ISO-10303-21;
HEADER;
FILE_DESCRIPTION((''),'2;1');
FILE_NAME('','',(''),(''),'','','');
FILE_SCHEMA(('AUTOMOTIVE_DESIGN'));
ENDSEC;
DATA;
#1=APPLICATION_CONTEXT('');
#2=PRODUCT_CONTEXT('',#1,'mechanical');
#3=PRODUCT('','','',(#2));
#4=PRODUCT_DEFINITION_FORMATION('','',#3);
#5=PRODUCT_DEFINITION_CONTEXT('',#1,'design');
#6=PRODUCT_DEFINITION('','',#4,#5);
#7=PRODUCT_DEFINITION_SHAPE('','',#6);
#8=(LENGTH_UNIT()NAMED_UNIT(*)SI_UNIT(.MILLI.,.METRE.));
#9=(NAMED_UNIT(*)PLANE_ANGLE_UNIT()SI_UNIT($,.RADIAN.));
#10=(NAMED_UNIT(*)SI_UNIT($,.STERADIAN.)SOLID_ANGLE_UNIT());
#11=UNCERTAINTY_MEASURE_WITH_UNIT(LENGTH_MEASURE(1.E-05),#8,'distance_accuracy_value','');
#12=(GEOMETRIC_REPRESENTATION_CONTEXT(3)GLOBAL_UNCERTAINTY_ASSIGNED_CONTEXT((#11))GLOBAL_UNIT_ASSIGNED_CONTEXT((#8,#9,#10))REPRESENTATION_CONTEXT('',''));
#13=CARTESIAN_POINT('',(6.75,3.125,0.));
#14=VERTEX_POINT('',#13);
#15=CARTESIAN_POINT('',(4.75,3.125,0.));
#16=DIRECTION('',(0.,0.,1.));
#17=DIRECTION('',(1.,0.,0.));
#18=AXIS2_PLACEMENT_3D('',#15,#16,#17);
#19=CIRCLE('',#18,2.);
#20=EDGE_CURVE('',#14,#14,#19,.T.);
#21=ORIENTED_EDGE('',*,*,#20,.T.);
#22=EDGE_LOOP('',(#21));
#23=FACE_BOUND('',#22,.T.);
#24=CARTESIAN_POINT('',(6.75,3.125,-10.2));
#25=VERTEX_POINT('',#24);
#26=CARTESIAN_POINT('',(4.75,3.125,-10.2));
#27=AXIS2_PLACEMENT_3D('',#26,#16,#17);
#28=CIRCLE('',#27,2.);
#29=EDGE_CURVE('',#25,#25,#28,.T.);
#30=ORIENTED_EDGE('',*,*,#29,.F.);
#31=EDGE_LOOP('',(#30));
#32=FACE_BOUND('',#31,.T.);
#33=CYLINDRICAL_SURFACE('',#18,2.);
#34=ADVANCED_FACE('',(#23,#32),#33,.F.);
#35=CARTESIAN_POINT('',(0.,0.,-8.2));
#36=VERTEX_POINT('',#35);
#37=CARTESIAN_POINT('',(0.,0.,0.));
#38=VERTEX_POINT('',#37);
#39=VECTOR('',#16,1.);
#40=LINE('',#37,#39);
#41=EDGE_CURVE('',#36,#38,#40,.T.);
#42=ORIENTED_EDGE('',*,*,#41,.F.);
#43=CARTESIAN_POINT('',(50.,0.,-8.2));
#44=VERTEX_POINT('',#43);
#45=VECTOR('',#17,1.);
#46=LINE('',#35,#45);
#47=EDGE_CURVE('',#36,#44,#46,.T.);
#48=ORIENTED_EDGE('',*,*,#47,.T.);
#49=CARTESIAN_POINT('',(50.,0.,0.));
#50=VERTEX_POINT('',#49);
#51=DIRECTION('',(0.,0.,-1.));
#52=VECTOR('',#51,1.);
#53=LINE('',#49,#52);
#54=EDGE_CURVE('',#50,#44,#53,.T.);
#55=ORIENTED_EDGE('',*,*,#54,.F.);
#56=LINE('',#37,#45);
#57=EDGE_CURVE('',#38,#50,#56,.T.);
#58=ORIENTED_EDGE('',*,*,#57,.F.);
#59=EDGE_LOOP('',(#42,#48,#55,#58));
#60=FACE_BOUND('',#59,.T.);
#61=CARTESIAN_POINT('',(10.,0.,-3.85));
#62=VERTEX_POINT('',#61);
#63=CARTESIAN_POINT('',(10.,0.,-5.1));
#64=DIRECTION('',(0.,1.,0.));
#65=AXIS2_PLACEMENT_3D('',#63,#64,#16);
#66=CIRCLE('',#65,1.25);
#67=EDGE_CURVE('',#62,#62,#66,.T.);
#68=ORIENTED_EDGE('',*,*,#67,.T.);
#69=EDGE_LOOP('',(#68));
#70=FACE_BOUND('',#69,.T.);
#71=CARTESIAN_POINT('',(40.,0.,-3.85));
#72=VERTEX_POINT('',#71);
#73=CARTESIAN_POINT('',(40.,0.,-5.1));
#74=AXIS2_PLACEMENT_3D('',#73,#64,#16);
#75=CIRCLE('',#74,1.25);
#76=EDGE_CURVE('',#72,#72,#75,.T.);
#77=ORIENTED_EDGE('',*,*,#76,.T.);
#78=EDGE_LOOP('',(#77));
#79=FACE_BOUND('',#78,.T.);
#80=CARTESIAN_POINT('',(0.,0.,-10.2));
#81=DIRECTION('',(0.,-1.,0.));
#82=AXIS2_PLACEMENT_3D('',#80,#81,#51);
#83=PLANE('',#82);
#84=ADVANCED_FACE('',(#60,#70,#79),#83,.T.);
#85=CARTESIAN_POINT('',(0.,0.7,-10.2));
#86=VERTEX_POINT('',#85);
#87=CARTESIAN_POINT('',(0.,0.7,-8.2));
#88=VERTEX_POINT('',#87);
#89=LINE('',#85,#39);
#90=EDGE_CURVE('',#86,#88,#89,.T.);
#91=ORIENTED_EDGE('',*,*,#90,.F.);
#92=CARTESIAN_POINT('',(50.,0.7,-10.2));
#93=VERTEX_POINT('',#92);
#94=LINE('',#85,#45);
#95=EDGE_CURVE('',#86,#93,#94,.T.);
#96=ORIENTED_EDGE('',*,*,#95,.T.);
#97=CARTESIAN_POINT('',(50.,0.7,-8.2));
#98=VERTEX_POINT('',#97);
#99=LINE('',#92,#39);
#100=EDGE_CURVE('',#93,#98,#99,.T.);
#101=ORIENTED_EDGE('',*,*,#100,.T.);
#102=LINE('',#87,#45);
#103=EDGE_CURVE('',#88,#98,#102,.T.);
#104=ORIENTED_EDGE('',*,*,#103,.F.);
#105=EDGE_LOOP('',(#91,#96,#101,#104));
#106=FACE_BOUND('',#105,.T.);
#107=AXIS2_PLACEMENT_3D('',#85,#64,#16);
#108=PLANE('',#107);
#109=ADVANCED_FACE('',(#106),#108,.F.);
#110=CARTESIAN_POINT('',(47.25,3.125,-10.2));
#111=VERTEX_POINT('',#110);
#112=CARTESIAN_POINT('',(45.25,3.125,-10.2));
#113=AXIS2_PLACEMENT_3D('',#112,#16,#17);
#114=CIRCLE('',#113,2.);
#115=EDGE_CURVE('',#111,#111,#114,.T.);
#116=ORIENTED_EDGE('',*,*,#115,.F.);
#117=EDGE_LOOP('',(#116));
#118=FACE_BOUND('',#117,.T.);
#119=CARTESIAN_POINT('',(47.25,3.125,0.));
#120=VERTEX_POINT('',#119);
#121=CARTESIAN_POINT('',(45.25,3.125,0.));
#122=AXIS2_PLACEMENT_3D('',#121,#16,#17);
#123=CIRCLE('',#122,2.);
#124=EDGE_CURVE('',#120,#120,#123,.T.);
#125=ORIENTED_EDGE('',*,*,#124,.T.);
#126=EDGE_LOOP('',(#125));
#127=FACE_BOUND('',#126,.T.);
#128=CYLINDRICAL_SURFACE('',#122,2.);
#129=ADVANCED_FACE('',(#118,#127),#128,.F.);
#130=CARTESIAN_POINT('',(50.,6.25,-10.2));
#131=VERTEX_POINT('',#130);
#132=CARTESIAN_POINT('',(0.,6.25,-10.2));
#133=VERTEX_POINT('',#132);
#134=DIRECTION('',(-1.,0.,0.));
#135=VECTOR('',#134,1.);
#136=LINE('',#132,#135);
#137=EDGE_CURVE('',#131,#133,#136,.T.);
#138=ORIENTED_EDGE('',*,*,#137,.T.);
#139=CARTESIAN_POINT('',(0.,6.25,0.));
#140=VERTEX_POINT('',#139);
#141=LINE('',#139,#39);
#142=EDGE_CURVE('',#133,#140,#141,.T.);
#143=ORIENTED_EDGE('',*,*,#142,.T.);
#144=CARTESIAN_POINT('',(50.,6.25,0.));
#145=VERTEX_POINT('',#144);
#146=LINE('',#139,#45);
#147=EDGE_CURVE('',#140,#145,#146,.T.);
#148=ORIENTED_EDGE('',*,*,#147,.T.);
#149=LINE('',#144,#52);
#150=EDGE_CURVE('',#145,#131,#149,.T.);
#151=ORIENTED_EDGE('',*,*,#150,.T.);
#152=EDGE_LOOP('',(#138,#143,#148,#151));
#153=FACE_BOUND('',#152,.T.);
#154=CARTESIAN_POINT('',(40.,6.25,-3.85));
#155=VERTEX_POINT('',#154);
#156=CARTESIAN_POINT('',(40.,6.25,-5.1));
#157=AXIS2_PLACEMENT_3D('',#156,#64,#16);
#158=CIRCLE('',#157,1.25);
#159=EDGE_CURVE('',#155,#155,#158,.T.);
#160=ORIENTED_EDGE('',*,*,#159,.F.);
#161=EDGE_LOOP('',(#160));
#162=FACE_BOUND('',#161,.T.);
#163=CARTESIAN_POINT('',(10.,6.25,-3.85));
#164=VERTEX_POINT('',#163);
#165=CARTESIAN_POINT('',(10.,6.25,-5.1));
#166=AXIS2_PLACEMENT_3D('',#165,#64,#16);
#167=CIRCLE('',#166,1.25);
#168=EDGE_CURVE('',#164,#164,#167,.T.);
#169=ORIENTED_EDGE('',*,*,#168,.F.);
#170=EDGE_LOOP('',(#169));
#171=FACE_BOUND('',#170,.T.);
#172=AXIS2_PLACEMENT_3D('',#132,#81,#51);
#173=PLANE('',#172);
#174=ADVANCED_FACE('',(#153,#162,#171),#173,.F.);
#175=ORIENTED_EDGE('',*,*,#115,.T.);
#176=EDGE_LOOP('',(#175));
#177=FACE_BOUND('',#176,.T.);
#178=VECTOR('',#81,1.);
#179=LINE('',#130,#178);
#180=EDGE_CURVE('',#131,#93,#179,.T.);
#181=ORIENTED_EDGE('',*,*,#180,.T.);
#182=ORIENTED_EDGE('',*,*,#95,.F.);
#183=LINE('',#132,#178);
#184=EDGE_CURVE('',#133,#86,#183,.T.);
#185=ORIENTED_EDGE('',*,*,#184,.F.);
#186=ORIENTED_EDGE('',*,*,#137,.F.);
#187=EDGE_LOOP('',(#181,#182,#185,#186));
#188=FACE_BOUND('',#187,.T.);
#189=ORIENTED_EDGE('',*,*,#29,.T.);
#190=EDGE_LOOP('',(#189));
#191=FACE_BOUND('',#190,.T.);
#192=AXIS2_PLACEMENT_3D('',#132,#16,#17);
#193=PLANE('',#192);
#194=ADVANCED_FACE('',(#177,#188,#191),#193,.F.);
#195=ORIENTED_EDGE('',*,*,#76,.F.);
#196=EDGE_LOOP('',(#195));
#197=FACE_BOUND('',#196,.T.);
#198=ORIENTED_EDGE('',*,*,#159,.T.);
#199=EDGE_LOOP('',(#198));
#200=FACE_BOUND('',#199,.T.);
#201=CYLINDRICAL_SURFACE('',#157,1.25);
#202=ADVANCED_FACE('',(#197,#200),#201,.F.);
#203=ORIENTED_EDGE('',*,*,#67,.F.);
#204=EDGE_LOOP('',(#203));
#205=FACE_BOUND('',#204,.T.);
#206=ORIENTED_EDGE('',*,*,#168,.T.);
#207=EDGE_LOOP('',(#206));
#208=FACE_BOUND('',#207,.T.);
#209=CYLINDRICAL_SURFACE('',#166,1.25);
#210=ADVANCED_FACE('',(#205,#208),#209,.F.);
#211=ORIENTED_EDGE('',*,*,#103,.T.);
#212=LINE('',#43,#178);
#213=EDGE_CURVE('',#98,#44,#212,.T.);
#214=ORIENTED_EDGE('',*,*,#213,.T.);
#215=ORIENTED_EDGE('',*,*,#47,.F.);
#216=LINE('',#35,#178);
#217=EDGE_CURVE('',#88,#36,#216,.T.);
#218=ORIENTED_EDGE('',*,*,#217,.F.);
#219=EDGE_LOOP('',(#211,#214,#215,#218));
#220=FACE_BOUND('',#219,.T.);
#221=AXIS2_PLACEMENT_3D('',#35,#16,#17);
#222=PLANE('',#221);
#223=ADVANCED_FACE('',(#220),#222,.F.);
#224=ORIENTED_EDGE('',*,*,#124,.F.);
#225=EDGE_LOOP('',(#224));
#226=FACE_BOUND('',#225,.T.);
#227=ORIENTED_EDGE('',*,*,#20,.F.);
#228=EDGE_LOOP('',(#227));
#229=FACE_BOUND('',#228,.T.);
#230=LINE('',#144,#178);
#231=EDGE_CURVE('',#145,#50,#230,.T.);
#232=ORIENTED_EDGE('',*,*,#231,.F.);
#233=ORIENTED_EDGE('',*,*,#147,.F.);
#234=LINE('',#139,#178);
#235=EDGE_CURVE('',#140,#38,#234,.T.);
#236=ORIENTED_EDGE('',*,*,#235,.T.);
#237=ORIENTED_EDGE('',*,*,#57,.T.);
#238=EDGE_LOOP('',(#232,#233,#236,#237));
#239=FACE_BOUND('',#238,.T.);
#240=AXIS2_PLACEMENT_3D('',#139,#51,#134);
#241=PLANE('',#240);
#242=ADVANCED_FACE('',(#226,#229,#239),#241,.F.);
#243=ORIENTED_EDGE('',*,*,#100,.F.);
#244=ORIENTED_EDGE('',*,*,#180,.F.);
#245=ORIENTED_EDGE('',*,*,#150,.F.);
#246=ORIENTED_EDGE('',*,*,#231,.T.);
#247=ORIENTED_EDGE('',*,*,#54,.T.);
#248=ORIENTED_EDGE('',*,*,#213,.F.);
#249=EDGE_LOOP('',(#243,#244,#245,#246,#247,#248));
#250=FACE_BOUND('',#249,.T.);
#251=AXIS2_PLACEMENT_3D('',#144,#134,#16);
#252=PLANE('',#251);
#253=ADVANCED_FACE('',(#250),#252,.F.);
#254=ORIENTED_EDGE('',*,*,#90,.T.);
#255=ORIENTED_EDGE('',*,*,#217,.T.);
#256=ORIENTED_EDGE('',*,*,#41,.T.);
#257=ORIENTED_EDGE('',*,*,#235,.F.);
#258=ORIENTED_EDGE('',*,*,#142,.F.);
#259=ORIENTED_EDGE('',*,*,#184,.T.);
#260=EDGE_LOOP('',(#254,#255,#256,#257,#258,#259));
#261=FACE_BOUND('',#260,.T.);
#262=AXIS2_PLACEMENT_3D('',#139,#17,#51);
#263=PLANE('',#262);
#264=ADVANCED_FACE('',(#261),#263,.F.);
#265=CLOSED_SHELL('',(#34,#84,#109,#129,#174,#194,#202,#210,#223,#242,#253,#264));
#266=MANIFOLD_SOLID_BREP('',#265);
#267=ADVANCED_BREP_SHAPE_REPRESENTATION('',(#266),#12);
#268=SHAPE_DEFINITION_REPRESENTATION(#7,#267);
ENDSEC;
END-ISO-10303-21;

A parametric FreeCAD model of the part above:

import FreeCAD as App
import Part
import Sketcher
Q = App.Units.Quantity


def add_polygon(sketch, points):
    """Adds a closed chain of lines whose ends are joined by coincident constraints."""
    first, n = sketch.GeometryCount, len(points)
    for a, b in zip(points, points[1:] + points[:1]):
        sketch.addGeometry(Part.LineSegment(App.Vector(*a, 0), App.Vector(*b, 0)), False)
    for i in range(n):
        sketch.addConstraint(Sketcher.Constraint("Coincident", first + i, 2, first + (i + 1) % n, 1))

doc = App.newDocument("Part")
body = doc.addObject("PartDesign::Body", "Body")

# Sketch on XZ plane
sketch1 = body.newObject("Sketcher::SketchObject", "Sketch")
sketch1.AttachmentSupport = (doc.getObject("XZ_Plane"), [""])
sketch1.MapMode = "FlatFace"
add_polygon(sketch1, [(0, -10), (0, 0), (50, 0), (50, -10)])  # lines 0-3
sketch1.addConstraint([
    Sketcher.Constraint("Vertical", 0),
    Sketcher.Constraint("Horizontal", 1),
    Sketcher.Constraint("Vertical", 2),
    Sketcher.Constraint("Horizontal", 3),
    Sketcher.Constraint("Coincident", 0, 2, -1, 1),
    Sketcher.Constraint("DistanceX", 1, 1, 1, 2, Q("50 mm")),
    Sketcher.Constraint("DistanceY", 0, 1, 0, 2, Q("10.2 mm")),
])
pad1 = body.newObject("PartDesign::Pad", "Pad")
pad1.Profile = sketch1
pad1.Length = 6.25
pad1.Reversed = True

# Sketch on XY plane
sketch2 = body.newObject("Sketcher::SketchObject", "Sketch001")
sketch2.AttachmentSupport = (doc.getObject("XY_Plane"), [""])
sketch2.MapMode = "FlatFace"
sketch2.addGeometry([
    Part.Circle(App.Vector(4.8, 3.1, 0), App.Vector(0, 0, 1), 2),
    Part.Circle(App.Vector(45.2, 3.1, 0), App.Vector(0, 0, 1), 2),
], False)
sketch2.addConstraint([
    Sketcher.Constraint("Equal", 0, 1),
    Sketcher.Constraint("Horizontal", 0, 3, 1, 3),
    Sketcher.Constraint("Diameter", 0, Q("4 mm")),
    Sketcher.Constraint("DistanceX", 0, 3, 1, 3, Q("40.5 mm")),
    Sketcher.Constraint("DistanceX", -1, 1, 0, 3, Q("4.75 mm")),
    Sketcher.Constraint("DistanceY", -1, 1, 0, 3, Q("3.125 mm")),
])
doc.recompute()
hole = body.newObject("PartDesign::Hole", "Hole")
hole.Profile = sketch2
hole.ThreadType = "None"
hole.Diameter = 4
hole.DepthType = "ThroughAll"

# Sketch on XZ plane
sketch3 = body.newObject("Sketcher::SketchObject", "Sketch002")
sketch3.AttachmentSupport = (doc.getObject("XZ_Plane"), [""])
sketch3.MapMode = "FlatFace"
sketch3.AttachmentOffset = App.Placement(App.Vector(0, 0, -6.25), App.Rotation())
sketch3.addGeometry([
    Part.Circle(App.Vector(10, -5.1, 0), App.Vector(0, 0, 1), 1.2),
    Part.Circle(App.Vector(40, -5.1, 0), App.Vector(0, 0, 1), 1.2),
], False)
sketch3.addConstraint([
    Sketcher.Constraint("Equal", 0, 1),
    Sketcher.Constraint("Horizontal", 0, 3, 1, 3),
    Sketcher.Constraint("Diameter", 0, Q("2.5 mm")),
    Sketcher.Constraint("DistanceX", -1, 1, 0, 3, Q("10 mm")),
    Sketcher.Constraint("DistanceX", -1, 1, 1, 3, Q("40 mm")),
    Sketcher.Constraint("DistanceY", 0, 3, -1, 1, Q("5.1 mm")),
])
doc.recompute()
hole2 = body.newObject("PartDesign::Hole", "Hole001")
hole2.Profile = sketch3
hole2.ThreadType = "None"
hole2.Diameter = 2.5
hole2.DepthType = "ThroughAll"
hole2.Reversed = True

# Sketch on YZ plane
sketch4 = body.newObject("Sketcher::SketchObject", "Sketch003")
sketch4.AttachmentSupport = (doc.getObject("YZ_Plane"), [""])
sketch4.MapMode = "FlatFace"
sketch4.AttachmentOffset = App.Placement(App.Vector(0, 0, 50), App.Rotation())
add_polygon(sketch4, [(0.7, -8.2), (0, -8.2), (0, -10.2), (0.7, -10.2)])  # lines 0-3
sketch4.addConstraint([
    Sketcher.Constraint("Horizontal", 0),
    Sketcher.Constraint("Vertical", 1),
    Sketcher.Constraint("Horizontal", 2),
    Sketcher.Constraint("Vertical", 3),
    Sketcher.Constraint("PointOnObject", 0, 2, -2),
    Sketcher.Constraint("DistanceY", 1, 2, 1, 1, Q("2 mm")),
    Sketcher.Constraint("DistanceX", 0, 2, 0, 1, Q("0.7 mm")),
    Sketcher.Constraint("DistanceY", 0, 2, -1, 1, Q("8.2 mm")),
])
pocket1 = body.newObject("PartDesign::Pocket", "Pocket")
pocket1.Profile = sketch4
pocket1.Type = "ThroughAll"

doc.recompute()
